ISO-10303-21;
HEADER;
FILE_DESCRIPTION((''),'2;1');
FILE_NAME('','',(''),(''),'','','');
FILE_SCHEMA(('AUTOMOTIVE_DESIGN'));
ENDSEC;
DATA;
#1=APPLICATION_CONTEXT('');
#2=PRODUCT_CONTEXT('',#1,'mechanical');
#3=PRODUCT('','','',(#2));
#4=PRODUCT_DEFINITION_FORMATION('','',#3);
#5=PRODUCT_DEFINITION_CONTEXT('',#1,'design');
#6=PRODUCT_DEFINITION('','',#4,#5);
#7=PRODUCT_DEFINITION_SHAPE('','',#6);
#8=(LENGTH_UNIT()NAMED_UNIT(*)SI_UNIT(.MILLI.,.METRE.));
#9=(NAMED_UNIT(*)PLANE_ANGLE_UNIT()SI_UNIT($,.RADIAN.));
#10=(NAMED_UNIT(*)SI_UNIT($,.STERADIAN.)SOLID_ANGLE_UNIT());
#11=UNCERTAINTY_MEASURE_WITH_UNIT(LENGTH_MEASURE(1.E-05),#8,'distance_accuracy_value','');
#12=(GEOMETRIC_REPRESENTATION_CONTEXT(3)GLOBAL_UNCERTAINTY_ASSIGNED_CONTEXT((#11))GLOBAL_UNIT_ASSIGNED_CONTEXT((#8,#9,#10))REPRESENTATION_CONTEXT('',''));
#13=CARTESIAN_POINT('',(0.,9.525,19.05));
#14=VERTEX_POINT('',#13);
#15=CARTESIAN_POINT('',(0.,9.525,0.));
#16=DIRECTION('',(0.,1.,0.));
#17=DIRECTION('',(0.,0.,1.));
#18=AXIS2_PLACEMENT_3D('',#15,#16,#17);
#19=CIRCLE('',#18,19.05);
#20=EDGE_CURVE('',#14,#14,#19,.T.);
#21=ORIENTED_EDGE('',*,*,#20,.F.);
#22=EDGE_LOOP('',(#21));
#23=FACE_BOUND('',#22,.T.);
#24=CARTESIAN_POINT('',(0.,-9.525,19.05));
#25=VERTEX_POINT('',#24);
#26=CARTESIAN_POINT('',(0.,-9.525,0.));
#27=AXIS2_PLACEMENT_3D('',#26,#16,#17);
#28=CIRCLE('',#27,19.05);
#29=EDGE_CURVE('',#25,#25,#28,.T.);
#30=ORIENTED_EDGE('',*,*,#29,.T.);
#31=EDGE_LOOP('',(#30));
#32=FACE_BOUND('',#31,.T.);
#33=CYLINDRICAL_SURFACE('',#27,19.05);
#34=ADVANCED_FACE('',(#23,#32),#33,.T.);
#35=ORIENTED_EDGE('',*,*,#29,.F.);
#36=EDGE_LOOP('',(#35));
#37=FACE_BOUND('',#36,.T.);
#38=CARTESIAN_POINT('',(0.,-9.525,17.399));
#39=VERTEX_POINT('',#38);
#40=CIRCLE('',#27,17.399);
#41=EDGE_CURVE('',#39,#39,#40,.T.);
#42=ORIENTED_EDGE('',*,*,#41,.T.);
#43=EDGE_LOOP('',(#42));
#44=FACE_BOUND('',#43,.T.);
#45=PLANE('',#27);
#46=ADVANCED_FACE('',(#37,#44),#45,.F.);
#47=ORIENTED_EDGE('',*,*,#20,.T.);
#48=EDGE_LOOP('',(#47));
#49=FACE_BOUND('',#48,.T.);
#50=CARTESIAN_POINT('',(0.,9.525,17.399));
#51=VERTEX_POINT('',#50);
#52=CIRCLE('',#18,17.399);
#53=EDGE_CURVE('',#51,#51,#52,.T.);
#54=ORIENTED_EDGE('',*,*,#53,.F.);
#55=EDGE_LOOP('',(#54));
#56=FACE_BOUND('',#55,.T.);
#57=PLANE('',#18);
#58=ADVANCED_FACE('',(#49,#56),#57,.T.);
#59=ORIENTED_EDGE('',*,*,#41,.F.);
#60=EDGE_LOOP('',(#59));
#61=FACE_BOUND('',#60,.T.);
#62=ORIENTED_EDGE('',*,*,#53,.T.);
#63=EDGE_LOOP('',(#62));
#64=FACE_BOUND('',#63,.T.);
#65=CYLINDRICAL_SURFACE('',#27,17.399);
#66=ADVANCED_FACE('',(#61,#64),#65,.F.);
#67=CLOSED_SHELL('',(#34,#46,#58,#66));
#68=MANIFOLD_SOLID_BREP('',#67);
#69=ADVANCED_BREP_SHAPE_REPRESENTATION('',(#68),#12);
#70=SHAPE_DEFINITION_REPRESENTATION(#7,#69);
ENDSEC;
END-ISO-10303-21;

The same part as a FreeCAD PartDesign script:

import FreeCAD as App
import Part
import Sketcher
from FreeCAD import Vector
Q = App.Units.Quantity

doc = App.newDocument("Part")
body = doc.addObject("PartDesign::Body", "Body")

sketch1 = doc.addObject("Sketcher::SketchObject", "Sketch")
body.addObject(sketch1)
sketch1.AttachmentSupport = (doc.XZ_Plane, [""])
sketch1.MapMode = "FlatFace"
sketch1.addGeometry(Part.Circle(Vector(0, 0, 0), Vector(0, 0, 1), 19.05), False)
sketch1.addConstraint([
    Sketcher.Constraint("Coincident", 0, 3, -1, 1),
    Sketcher.Constraint("Diameter", 0, Q("1.5 in")),
])
pad1 = doc.addObject("PartDesign::Pad", "Pad")
body.addObject(pad1)
pad1.Profile = sketch1
pad1.Type = "TwoLengths"
pad1.Length = Q("0.375 in")
pad1.Length2 = Q("0.375 in")
pad1.Reversed = True

sketch2 = doc.addObject("Sketcher::SketchObject", "Sketch001")
body.addObject(sketch2)
sketch2.AttachmentSupport = (doc.XZ_Plane, [""])
sketch2.MapMode = "FlatFace"
sketch2.addGeometry(Part.Circle(Vector(0, 0, 0), Vector(0, 0, 1), 17.399), False)
sketch2.addConstraint([
    Sketcher.Constraint("Coincident", 0, 3, -1, 1),
    Sketcher.Constraint("Diameter", 0, Q("1.37 in")),
])
pocket1 = doc.addObject("PartDesign::Pocket", "Pocket")
body.addObject(pocket1)
pocket1.Profile = sketch2
pocket1.Type = "ThroughAll"
pocket1.Midplane = True

doc.recompute()
